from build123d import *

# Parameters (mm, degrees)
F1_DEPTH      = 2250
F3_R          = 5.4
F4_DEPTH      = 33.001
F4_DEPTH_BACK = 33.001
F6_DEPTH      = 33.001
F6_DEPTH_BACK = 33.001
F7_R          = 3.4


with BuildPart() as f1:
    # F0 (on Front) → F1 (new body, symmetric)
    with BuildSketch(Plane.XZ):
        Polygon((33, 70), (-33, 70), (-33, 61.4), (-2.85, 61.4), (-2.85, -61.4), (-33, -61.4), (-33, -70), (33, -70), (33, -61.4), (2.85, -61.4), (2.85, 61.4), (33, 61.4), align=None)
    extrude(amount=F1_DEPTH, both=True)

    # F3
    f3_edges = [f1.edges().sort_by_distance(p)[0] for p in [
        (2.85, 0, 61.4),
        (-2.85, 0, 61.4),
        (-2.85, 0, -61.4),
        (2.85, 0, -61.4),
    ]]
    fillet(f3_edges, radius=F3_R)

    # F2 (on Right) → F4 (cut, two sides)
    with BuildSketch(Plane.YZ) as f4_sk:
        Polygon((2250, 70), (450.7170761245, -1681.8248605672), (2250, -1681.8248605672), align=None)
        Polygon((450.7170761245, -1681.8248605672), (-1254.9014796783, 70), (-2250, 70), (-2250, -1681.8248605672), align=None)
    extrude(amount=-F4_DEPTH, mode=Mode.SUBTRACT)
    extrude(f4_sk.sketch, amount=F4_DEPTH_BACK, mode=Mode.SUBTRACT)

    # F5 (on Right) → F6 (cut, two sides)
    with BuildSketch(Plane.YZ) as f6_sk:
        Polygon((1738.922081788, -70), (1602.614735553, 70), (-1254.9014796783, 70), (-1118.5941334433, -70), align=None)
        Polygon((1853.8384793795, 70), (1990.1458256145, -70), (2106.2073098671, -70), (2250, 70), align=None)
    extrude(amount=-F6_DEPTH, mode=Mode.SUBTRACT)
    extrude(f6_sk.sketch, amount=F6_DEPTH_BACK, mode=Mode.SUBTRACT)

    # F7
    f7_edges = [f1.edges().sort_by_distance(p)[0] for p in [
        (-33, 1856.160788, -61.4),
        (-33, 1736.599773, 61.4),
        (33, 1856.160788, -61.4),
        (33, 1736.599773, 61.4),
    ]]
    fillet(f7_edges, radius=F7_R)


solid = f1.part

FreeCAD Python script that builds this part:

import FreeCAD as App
import Part
import Sketcher
from FreeCAD import Vector
Q = App.Units.Quantity


def edges_at(feature, points):
    """Names of the edges that pass closest to the given points."""
    edges = feature.Shape.Edges
    near = lambda p: min(range(len(edges)), key=lambda i: edges[i].distToShape(Part.Vertex(*p))[0])
    return sorted({f"Edge{near(p) + 1}" for p in points})

doc = App.newDocument("Part")
body = doc.addObject("PartDesign::Body", "Body")

sketch1 = body.newObject("Sketcher::SketchObject", "Sketch")
sketch1.AttachmentSupport = (doc.getObject("XZ_Plane"), [""])
sketch1.MapMode = "FlatFace"
sketch1.addGeometry(Part.LineSegment(Vector(33, 70, 0), Vector(-33, 70, 0)), False)
sketch1.addGeometry(Part.LineSegment(Vector(-33, 70, 0), Vector(-33, 61, 0)), False)
sketch1.addGeometry(Part.LineSegment(Vector(-33, 61, 0), Vector(-3, 61, 0)), False)
sketch1.addGeometry(Part.LineSegment(Vector(-3, 61, 0), Vector(-3, -61, 0)), False)
sketch1.addGeometry(Part.LineSegment(Vector(-3, -61, 0), Vector(-33, -61, 0)), False)
sketch1.addGeometry(Part.LineSegment(Vector(-33, -61, 0), Vector(-33, -70, 0)), False)
sketch1.addGeometry(Part.LineSegment(Vector(-33, -70, 0), Vector(33, -70, 0)), False)
sketch1.addGeometry(Part.LineSegment(Vector(33, -70, 0), Vector(33, -61, 0)), False)
sketch1.addGeometry(Part.LineSegment(Vector(33, -61, 0), Vector(3, -61, 0)), False)
sketch1.addGeometry(Part.LineSegment(Vector(3, -61, 0), Vector(3, 61, 0)), False)
sketch1.addGeometry(Part.LineSegment(Vector(3, 61, 0), Vector(33, 61, 0)), False)
sketch1.addGeometry(Part.LineSegment(Vector(33, 61, 0), Vector(33, 70, 0)), False)
sketch1.addConstraint(Sketcher.Constraint("Coincident", 0, 2, 1, 1))
sketch1.addConstraint(Sketcher.Constraint("Coincident", 1, 2, 2, 1))
sketch1.addConstraint(Sketcher.Constraint("Coincident", 2, 2, 3, 1))
sketch1.addConstraint(Sketcher.Constraint("Coincident", 3, 2, 4, 1))
sketch1.addConstraint(Sketcher.Constraint("Coincident", 4, 2, 5, 1))
sketch1.addConstraint(Sketcher.Constraint("Coincident", 5, 2, 6, 1))
sketch1.addConstraint(Sketcher.Constraint("Coincident", 6, 2, 7, 1))
sketch1.addConstraint(Sketcher.Constraint("Coincident", 7, 2, 8, 1))
sketch1.addConstraint(Sketcher.Constraint("Coincident", 8, 2, 9, 1))
sketch1.addConstraint(Sketcher.Constraint("Coincident", 9, 2, 10, 1))
sketch1.addConstraint(Sketcher.Constraint("Coincident", 10, 2, 11, 1))
sketch1.addConstraint(Sketcher.Constraint("Coincident", 11, 2, 0, 1))
sketch1.addConstraint(Sketcher.Constraint("Horizontal", 0))
sketch1.addConstraint(Sketcher.Constraint("Vertical", 1))
sketch1.addConstraint(Sketcher.Constraint("Horizontal", 2))
sketch1.addConstraint(Sketcher.Constraint("Vertical", 3))
sketch1.addConstraint(Sketcher.Constraint("Horizontal", 4))
sketch1.addConstraint(Sketcher.Constraint("Vertical", 5))
sketch1.addConstraint(Sketcher.Constraint("Horizontal", 6))
sketch1.addConstraint(Sketcher.Constraint("Vertical", 7))
sketch1.addConstraint(Sketcher.Constraint("Horizontal", 8))
sketch1.addConstraint(Sketcher.Constraint("Vertical", 9))
sketch1.addConstraint(Sketcher.Constraint("Horizontal", 10))
sketch1.addConstraint(Sketcher.Constraint("Vertical", 11))
sketch1.addConstraint(Sketcher.Constraint("Symmetric", 0, 2, 6, 2, -1, 1))
sketch1.addConstraint(Sketcher.Constraint("Symmetric", 2, 2, 8, 2, -1, 1))
sketch1.addConstraint(Sketcher.Constraint("Symmetric", 4, 2, 10, 2, -1, 1))
sketch1.addConstraint(Sketcher.Constraint("Symmetric", 4, 2, 7, 2, -2))
sketch1.addConstraint(Sketcher.Constraint("DistanceX", 0, 2, 0, 1, Q("66 mm")))
sketch1.addConstraint(Sketcher.Constraint("DistanceY", 1, 2, 1, 1, Q("8.6 mm")))
sketch1.addConstraint(Sketcher.Constraint("DistanceY", 3, 2, 3, 1, Q("122.8 mm")))
sketch1.addConstraint(Sketcher.Constraint("DistanceX", 2, 1, 2, 2, Q("30.15 mm")))
pad1 = body.newObject("PartDesign::Pad", "Pad")
pad1.Profile = sketch1
pad1.Length = 4500
pad1.Midplane = True
doc.recompute()

fillet = body.newObject("PartDesign::Fillet", "Fillet")
fillet.Base = (pad1, edges_at(pad1, [
    (2.85, 0, 61.4),
    (-2.85, 0, 61.4),
    (-2.85, 0, -61.4),
    (2.85, 0, -61.4),
]))
fillet.Radius = 5.4

sketch2 = body.newObject("Sketcher::SketchObject", "Sketch001")
sketch2.AttachmentSupport = (doc.getObject("YZ_Plane"), [""])
sketch2.MapMode = "FlatFace"
sketch2.addGeometry(Part.LineSegment(Vector(2250, 70, 0), Vector(451, -1682, 0)), False)
sketch2.addGeometry(Part.LineSegment(Vector(451, -1682, 0), Vector(2250, -1682, 0)), False)
sketch2.addGeometry(Part.LineSegment(Vector(2250, -1682, 0), Vector(2250, 70, 0)), False)
sketch2.addGeometry(Part.LineSegment(Vector(451, -1682, 0), Vector(-1255, 70, 0)), False)
sketch2.addGeometry(Part.LineSegment(Vector(-1255, 70, 0), Vector(-2250, 70, 0)), False)
sketch2.addGeometry(Part.LineSegment(Vector(-2250, 70, 0), Vector(-2250, -1682, 0)), False)
sketch2.addGeometry(Part.LineSegment(Vector(-2250, -1682, 0), Vector(451, -1682, 0)), False)
sketch2.addConstraint(Sketcher.Constraint("Coincident", 0, 2, 1, 1))
sketch2.addConstraint(Sketcher.Constraint("Coincident", 1, 2, 2, 1))
sketch2.addConstraint(Sketcher.Constraint("Coincident", 2, 2, 0, 1))
sketch2.addConstraint(Sketcher.Constraint("Coincident", 3, 2, 4, 1))
sketch2.addConstraint(Sketcher.Constraint("Coincident", 4, 2, 5, 1))
sketch2.addConstraint(Sketcher.Constraint("Coincident", 5, 2, 6, 1))
sketch2.addConstraint(Sketcher.Constraint("Coincident", 6, 2, 3, 1))
sketch2.addConstraint(Sketcher.Constraint("Horizontal", 1))
sketch2.addConstraint(Sketcher.Constraint("Vertical", 2))
sketch2.addConstraint(Sketcher.Constraint("Horizontal", 4))
sketch2.addConstraint(Sketcher.Constraint("Vertical", 5))
sketch2.addConstraint(Sketcher.Constraint("Horizontal", 6))
sketch2.addConstraint(Sketcher.Constraint("Coincident", 6, 2, 0, 2))
sketch2.addConstraint(Sketcher.Constraint("Symmetric", 2, 2, 4, 2, -2))
sketch2.addConstraint(Sketcher.Constraint("Perpendicular", 0, 3))
sketch2.addConstraint(Sketcher.Constraint("Distance", 3, Q("2445 mm")))
sketch2.addConstraint(Sketcher.Constraint("DistanceX", -1, 1, 1, 2, Q("2250 mm")))
sketch2.addConstraint(Sketcher.Constraint("DistanceY", -1, 1, 2, 2, Q("70 mm")))
sketch2.addConstraint(Sketcher.Constraint("DistanceX", 4, 2, 4, 1, Q("995.09852 mm")))
pocket1 = body.newObject("PartDesign::Pocket", "Pocket")
pocket1.Profile = sketch2
pocket1.Type = "ThroughAll"
pocket1.Midplane = True

sketch3 = body.newObject("Sketcher::SketchObject", "Sketch002")
sketch3.AttachmentSupport = (doc.getObject("YZ_Plane"), [""])
sketch3.MapMode = "FlatFace"
sketch3.addGeometry(Part.LineSegment(Vector(1739, -70, 0), Vector(1603, 70, 0)), False)
sketch3.addGeometry(Part.LineSegment(Vector(1603, 70, 0), Vector(-1255, 70, 0)), False)
sketch3.addGeometry(Part.LineSegment(Vector(-1255, 70, 0), Vector(-1119, -70, 0)), False)
sketch3.addGeometry(Part.LineSegment(Vector(-1119, -70, 0), Vector(1739, -70, 0)), False)
sketch3.addGeometry(Part.LineSegment(Vector(1854, 70, 0), Vector(1990, -70, 0)), False)
sketch3.addGeometry(Part.LineSegment(Vector(1990, -70, 0), Vector(2106, -70, 0)), False)
sketch3.addGeometry(Part.LineSegment(Vector(2106, -70, 0), Vector(2250, 70, 0)), False)
sketch3.addGeometry(Part.LineSegment(Vector(2250, 70, 0), Vector(1854, 70, 0)), False)
sketch3.addConstraint(Sketcher.Constraint("Coincident", 0, 2, 1, 1))
sketch3.addConstraint(Sketcher.Constraint("Coincident", 1, 2, 2, 1))
sketch3.addConstraint(Sketcher.Constraint("Coincident", 2, 2, 3, 1))
sketch3.addConstraint(Sketcher.Constraint("Coincident", 3, 2, 0, 1))
sketch3.addConstraint(Sketcher.Constraint("Coincident", 4, 2, 5, 1))
sketch3.addConstraint(Sketcher.Constraint("Coincident", 5, 2, 6, 1))
sketch3.addConstraint(Sketcher.Constraint("Coincident", 6, 2, 7, 1))
sketch3.addConstraint(Sketcher.Constraint("Coincident", 7, 2, 4, 1))
sketch3.addConstraint(Sketcher.Constraint("Horizontal", 1))
sketch3.addConstraint(Sketcher.Constraint("Horizontal", 3))
sketch3.addConstraint(Sketcher.Constraint("Horizontal", 5))
sketch3.addConstraint(Sketcher.Constraint("Horizontal", 7))
sketch3.addConstraint(Sketcher.Constraint("Parallel", 0, 2))
sketch3.addConstraint(Sketcher.Constraint("Parallel", 2, 4))
sketch3.addConstraint(Sketcher.Constraint("Perpendicular", 4, 6))
sketch3.addConstraint(Sketcher.Constraint("Horizontal", 3, 2, 4, 2))
sketch3.addConstraint(Sketcher.Constraint("Horizontal", 1, 2, 6, 2))
sketch3.addConstraint(Sketcher.Constraint("DistanceY", -1, 1, 0, 2, Q("70 mm")))
sketch3.addConstraint(Sketcher.Constraint("DistanceY", 2, 2, -1, 1, Q("70 mm")))
sketch3.addConstraint(Sketcher.Constraint("DistanceX", -1, 1, 6, 2, Q("2250 mm")))
sketch3.addConstraint(Sketcher.Constraint("DistanceX", 7, 2, 7, 1, Q("396.161521 mm")))
sketch3.addConstraint(Sketcher.Constraint("DistanceX", 1, 2, 1, 1, Q("2857.516215 mm")))
sketch3.addConstraint(Sketcher.Constraint("DistanceX", 5, 1, 5, 2, Q("116.061484 mm")))
sketch3.addConstraint(Sketcher.Constraint("DistanceX", 1, 2, -1, 1, Q("1254.90148 mm")))
pocket2 = body.newObject("PartDesign::Pocket", "Pocket001")
pocket2.Profile = sketch3
pocket2.Type = "ThroughAll"
pocket2.Midplane = True
doc.recompute()

fillet2 = body.newObject("PartDesign::Fillet", "Fillet001")
fillet2.Base = (pocket2, edges_at(pocket2, [
    (-33, 1856.161, -61.4),
    (-33, 1736.6, 61.4),
    (33, 1856.161, -61.4),
    (33, 1736.6, 61.4),
]))
fillet2.Radius = 3.4

doc.recompute()
